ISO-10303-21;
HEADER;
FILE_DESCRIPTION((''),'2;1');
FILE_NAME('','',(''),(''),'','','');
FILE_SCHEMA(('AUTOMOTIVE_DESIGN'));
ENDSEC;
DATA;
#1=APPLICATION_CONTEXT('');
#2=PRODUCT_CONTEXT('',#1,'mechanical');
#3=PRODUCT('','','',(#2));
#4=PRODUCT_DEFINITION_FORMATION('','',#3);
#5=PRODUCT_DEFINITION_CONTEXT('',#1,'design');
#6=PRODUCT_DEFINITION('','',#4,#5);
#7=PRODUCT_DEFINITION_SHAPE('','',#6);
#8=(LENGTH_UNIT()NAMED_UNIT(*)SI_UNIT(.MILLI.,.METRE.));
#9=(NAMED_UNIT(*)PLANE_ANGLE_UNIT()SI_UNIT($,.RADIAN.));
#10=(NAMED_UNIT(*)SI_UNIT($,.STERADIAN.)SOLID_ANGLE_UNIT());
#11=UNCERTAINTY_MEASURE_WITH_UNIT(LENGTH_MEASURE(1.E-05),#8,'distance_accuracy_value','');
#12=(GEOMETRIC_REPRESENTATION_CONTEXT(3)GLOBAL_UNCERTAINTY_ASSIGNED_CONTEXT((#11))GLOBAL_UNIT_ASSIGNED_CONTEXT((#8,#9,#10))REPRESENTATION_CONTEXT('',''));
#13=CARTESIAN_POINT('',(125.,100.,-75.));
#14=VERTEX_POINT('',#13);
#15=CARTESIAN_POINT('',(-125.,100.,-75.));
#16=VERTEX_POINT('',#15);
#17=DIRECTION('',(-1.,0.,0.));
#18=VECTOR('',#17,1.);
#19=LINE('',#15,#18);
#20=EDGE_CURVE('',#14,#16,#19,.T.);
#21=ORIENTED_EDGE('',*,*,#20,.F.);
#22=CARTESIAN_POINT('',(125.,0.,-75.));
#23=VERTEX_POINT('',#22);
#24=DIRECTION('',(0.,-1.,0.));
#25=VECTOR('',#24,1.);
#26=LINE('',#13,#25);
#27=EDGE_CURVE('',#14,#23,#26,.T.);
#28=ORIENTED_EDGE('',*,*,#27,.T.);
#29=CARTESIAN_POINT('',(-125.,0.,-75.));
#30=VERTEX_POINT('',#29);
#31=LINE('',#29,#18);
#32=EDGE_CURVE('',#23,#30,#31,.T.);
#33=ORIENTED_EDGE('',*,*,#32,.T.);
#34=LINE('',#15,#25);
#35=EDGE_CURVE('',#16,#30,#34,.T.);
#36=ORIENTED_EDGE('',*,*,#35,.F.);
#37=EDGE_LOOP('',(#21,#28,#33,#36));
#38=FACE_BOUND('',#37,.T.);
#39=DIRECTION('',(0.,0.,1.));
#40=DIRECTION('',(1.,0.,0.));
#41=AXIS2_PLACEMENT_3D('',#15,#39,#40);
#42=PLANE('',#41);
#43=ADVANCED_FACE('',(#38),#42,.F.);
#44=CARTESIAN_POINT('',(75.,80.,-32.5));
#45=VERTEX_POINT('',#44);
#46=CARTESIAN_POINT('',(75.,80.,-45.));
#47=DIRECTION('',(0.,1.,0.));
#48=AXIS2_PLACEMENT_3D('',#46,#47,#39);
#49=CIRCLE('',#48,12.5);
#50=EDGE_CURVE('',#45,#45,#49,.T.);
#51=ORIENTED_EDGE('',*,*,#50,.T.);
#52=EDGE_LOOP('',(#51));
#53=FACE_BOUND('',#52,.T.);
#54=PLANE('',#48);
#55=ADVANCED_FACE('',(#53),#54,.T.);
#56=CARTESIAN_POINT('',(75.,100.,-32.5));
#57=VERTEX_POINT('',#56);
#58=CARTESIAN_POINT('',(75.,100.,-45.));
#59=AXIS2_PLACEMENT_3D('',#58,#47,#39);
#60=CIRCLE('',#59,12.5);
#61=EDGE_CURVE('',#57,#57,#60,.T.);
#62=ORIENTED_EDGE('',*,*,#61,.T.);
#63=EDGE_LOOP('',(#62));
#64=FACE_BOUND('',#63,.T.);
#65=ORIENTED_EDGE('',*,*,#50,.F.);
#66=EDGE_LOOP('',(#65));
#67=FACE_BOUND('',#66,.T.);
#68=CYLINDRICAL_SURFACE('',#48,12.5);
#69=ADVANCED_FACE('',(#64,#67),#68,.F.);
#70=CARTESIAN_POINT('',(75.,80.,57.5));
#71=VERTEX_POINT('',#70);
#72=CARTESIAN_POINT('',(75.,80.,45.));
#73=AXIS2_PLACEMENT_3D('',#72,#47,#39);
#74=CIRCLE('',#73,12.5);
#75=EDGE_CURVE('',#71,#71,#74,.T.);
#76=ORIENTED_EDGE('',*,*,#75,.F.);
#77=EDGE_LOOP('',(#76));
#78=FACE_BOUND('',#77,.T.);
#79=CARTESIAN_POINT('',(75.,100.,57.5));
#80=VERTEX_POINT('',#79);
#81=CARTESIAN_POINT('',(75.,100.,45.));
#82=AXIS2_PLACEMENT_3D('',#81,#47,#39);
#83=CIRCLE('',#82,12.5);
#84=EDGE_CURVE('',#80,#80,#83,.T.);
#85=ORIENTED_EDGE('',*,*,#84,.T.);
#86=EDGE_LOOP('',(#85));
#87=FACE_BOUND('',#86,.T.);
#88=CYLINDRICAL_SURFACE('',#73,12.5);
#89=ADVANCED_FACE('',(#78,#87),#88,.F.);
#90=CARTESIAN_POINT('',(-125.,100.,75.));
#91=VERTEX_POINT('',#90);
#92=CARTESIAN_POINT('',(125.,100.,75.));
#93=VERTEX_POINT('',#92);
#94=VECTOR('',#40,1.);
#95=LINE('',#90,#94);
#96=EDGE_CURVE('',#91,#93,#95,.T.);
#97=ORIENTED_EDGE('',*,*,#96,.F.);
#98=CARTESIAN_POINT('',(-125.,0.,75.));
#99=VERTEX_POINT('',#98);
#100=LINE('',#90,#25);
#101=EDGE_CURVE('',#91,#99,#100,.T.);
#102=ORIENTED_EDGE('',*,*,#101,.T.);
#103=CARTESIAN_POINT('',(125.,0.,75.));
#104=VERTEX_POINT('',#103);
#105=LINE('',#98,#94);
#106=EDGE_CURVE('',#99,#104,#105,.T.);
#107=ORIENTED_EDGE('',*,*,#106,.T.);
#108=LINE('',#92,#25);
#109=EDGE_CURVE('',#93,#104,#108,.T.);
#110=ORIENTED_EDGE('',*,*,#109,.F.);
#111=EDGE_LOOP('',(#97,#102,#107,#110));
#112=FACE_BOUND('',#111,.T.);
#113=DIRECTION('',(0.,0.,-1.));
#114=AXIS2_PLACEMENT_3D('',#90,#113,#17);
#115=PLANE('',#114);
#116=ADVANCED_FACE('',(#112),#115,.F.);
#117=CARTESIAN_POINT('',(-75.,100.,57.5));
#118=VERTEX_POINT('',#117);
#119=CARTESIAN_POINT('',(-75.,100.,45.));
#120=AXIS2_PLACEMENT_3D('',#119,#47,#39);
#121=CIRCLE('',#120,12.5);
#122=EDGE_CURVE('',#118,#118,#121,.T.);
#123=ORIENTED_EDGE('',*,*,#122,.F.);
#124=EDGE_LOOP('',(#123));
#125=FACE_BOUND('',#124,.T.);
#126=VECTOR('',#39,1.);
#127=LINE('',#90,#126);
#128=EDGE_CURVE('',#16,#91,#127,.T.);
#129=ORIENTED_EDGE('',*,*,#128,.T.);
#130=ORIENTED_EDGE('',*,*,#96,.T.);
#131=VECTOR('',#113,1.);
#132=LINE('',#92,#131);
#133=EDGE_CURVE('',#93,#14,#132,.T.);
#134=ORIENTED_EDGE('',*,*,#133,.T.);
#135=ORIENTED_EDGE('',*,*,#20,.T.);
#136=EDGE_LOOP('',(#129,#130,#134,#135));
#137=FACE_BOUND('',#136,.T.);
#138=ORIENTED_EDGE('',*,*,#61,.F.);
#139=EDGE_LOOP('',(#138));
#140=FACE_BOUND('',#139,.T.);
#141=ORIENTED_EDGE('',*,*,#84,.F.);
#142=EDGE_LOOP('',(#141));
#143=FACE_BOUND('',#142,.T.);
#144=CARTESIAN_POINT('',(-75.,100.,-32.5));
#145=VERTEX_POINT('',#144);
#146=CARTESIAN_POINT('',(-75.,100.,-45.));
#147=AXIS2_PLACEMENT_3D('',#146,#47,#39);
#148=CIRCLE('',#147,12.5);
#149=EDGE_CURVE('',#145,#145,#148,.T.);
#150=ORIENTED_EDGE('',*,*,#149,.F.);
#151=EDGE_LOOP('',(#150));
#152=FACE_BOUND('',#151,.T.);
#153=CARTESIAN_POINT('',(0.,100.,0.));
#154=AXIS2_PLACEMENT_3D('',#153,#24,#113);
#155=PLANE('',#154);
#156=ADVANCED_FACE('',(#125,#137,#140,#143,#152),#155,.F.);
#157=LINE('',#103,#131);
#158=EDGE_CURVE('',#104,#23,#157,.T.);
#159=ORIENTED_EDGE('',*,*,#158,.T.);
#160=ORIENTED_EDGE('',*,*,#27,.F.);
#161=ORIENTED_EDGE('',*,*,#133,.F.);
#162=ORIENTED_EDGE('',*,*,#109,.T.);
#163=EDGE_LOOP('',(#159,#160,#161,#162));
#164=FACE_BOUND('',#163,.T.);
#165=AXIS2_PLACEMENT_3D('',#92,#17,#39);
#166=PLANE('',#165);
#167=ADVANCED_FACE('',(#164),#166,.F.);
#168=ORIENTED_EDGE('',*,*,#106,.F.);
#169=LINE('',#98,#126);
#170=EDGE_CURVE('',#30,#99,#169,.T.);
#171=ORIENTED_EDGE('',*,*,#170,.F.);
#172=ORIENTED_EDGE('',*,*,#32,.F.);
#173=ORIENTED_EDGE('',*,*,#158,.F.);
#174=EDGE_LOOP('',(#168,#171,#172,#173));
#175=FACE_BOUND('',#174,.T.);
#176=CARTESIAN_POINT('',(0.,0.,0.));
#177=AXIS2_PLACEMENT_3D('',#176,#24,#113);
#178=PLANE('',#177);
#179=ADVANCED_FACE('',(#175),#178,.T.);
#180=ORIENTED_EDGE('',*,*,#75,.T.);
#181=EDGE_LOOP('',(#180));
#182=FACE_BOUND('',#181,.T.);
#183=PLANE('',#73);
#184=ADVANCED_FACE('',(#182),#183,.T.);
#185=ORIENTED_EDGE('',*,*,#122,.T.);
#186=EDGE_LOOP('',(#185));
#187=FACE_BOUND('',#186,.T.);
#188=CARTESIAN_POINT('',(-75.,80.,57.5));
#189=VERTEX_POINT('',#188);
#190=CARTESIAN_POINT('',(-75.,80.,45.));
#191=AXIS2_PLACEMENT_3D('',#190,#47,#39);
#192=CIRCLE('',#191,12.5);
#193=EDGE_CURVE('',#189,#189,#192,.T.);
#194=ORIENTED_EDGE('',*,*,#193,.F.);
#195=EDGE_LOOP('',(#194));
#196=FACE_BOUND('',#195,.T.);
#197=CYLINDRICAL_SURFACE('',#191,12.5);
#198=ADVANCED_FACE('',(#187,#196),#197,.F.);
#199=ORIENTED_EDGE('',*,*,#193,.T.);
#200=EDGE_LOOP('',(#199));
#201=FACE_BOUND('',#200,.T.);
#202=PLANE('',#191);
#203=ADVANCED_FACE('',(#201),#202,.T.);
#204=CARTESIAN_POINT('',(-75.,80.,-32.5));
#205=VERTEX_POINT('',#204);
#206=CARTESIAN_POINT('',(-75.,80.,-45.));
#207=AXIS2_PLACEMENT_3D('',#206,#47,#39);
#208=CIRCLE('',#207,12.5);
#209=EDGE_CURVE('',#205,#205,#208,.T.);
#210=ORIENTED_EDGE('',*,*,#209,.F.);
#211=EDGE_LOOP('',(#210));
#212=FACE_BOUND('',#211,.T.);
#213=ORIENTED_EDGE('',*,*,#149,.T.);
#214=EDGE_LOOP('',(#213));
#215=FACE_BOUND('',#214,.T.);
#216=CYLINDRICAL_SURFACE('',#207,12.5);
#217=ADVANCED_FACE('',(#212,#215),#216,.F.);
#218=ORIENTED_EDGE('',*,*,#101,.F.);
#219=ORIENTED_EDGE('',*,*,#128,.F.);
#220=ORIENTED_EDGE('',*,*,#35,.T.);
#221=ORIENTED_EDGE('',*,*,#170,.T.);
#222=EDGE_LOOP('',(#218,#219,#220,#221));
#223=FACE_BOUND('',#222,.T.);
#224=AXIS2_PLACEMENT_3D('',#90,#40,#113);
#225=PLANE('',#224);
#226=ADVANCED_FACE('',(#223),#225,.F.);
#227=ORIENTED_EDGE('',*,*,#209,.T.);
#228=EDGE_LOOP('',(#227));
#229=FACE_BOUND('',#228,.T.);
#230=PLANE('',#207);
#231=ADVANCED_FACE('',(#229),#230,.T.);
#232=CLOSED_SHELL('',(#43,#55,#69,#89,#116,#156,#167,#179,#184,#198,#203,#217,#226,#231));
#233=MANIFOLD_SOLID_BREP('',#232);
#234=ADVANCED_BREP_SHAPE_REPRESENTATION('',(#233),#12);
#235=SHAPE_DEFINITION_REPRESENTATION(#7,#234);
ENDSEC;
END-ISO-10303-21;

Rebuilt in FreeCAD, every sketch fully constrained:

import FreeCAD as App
import Part
import Sketcher

V = App.Vector
Q = App.Units.Quantity


def add_polygon(sketch, points):
    """Adds a closed chain of lines whose ends are joined by coincident constraints."""
    first, n = sketch.GeometryCount, len(points)
    for a, b in zip(points, points[1:] + points[:1]):
        sketch.addGeometry(Part.LineSegment(App.Vector(*a, 0), App.Vector(*b, 0)), False)
    for i in range(n):
        sketch.addConstraint(Sketcher.Constraint("Coincident", first + i, 2, first + (i + 1) % n, 1))

doc = App.newDocument("Part")
params = doc.addObject("Spreadsheet::Sheet", "Params")
for row, (alias, value) in enumerate([
    ("sketch1_width", "250 mm"),
    ("sketch1_height", "150 mm"),
    ("pad1_length", "100 mm"),
    ("sketch2_diameter", "25 mm"),
    ("pocket1_length", "20 mm"),
], start=1):
    params.set(f"A{row}", alias)
    params.set(f"B{row}", "=" + value)
    params.setAlias(f"B{row}", alias)

body = doc.addObject("PartDesign::Body", "Body")

# Sketch on XZ plane
sketch1 = body.newObject("Sketcher::SketchObject", "Sketch")
sketch1.AttachmentSupport = (doc.getObject("XZ_Plane"), [""])
sketch1.MapMode = "FlatFace"
add_polygon(sketch1, [(-125, -75), (-125, 75), (125, 75), (125, -75)])  # lines 0-3
sketch1.addConstraint(Sketcher.Constraint("Vertical", 0))
sketch1.addConstraint(Sketcher.Constraint("Horizontal", 1))
sketch1.addConstraint(Sketcher.Constraint("Vertical", 2))
sketch1.addConstraint(Sketcher.Constraint("Horizontal", 3))
sketch1.addConstraint(Sketcher.Constraint("Symmetric", 0, 2, 2, 2, -1, 1))
sketch1.addConstraint(Sketcher.Constraint("DistanceX", 1, 1, 1, 2, Q("250 mm")))
sketch1.addConstraint(Sketcher.Constraint("DistanceY", 0, 1, 0, 2, Q("150 mm")))
sketch1.setExpression("Constraints[9]", "Params.sketch1_width")
sketch1.setExpression("Constraints[10]", "Params.sketch1_height")
pad1 = body.newObject("PartDesign::Pad", "Pad")
pad1.Profile = sketch1
pad1.setExpression("Length", "Params.pad1_length")
pad1.Reversed = True

# Sketch on XZ plane
sketch2 = body.newObject("Sketcher::SketchObject", "Sketch001")
sketch2.AttachmentSupport = (doc.getObject("XZ_Plane"), [""])
sketch2.MapMode = "FlatFace"
sketch2.AttachmentOffset = App.Placement(V(0, 0, -100), App.Rotation())
sketch2.addGeometry(Part.Circle(V(-75, -45, 0), V(0, 0, 1), 12), False)
sketch2.addGeometry(Part.Circle(V(75, -45, 0), V(0, 0, 1), 12), False)
sketch2.addGeometry(Part.Circle(V(75, 45, 0), V(0, 0, 1), 12), False)
sketch2.addGeometry(Part.Circle(V(-75, 45, 0), V(0, 0, 1), 12), False)
sketch2.addConstraint(Sketcher.Constraint("Equal", 0, 1))
sketch2.addConstraint(Sketcher.Constraint("Equal", 1, 2))
sketch2.addConstraint(Sketcher.Constraint("Equal", 2, 3))
sketch2.addConstraint(Sketcher.Constraint("Symmetric", 0, 3, 2, 3, -1, 1))
sketch2.addConstraint(Sketcher.Constraint("Symmetric", 1, 3, 3, 3, -1, 1))
sketch2.addConstraint(Sketcher.Constraint("Symmetric", 0, 3, 1, 3, -2))
sketch2.addConstraint(Sketcher.Constraint("Diameter", 0, Q("25 mm")))
sketch2.addConstraint(Sketcher.Constraint("DistanceX", 0, 3, -1, 1, Q("75 mm")))
sketch2.addConstraint(Sketcher.Constraint("DistanceY", 0, 3, -1, 1, Q("45 mm")))
sketch2.setExpression("Constraints[6]", "Params.sketch2_diameter")
pocket1 = body.newObject("PartDesign::Pocket", "Pocket")
pocket1.Profile = sketch2
pocket1.setExpression("Length", "Params.pocket1_length")
pocket1.Reversed = True

doc.recompute()
